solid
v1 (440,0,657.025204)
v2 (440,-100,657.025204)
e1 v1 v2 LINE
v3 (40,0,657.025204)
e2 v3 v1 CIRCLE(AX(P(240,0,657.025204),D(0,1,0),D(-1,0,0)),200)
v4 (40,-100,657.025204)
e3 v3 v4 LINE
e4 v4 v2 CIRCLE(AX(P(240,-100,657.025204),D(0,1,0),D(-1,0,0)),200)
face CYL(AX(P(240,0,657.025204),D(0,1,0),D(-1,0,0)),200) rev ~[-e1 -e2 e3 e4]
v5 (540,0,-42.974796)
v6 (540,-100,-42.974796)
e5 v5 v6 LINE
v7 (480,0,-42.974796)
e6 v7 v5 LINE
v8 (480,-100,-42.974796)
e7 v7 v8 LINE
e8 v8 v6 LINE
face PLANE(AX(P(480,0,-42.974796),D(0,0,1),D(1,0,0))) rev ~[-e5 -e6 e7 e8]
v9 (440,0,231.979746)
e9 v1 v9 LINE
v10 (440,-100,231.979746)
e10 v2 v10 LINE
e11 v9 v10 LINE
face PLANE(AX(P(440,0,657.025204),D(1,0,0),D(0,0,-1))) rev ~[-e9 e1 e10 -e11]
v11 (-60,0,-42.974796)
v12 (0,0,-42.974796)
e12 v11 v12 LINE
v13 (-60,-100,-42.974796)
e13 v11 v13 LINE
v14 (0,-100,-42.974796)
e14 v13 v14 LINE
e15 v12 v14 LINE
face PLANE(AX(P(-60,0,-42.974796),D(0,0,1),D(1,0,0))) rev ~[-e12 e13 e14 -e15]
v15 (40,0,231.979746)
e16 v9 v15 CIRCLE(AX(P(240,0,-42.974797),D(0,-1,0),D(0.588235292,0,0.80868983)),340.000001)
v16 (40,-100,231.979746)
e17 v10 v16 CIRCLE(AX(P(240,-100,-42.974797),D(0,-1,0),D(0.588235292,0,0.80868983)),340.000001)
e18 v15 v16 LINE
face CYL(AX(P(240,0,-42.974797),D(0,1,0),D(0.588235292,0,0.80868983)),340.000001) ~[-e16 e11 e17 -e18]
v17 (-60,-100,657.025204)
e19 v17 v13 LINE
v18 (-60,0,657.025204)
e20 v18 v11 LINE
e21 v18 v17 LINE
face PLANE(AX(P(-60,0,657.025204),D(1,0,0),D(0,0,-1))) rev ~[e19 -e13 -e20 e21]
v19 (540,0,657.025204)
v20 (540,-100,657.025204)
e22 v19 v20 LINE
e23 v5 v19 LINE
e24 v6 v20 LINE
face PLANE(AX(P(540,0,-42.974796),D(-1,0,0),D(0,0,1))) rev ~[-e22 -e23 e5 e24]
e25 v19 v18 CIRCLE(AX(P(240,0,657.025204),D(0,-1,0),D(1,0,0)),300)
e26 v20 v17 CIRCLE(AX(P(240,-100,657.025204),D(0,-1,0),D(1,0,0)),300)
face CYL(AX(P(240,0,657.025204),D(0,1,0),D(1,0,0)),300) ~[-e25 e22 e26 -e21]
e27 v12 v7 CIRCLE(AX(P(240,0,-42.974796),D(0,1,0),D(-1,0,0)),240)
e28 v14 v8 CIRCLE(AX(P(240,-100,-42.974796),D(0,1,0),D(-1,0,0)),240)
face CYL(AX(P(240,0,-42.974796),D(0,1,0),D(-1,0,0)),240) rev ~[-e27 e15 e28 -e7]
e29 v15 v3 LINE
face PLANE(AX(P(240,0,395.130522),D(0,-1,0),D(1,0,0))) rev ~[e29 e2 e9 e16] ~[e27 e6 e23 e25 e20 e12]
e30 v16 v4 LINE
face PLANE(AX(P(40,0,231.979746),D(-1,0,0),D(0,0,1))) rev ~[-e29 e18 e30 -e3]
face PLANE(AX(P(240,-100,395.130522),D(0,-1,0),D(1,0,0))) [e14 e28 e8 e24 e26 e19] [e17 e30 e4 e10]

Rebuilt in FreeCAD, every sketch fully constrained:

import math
import FreeCAD as App
import Part
import Sketcher

V = App.Vector
Q = App.Units.Quantity

doc = App.newDocument("Part")
params = doc.addObject("Spreadsheet::Sheet", "Params")
for row, (alias, value) in enumerate([
    ("sketch1_radius", "240 mm"),
    ("sketch1_radius2", "300 mm"),
    ("sketch1_radius3", "200 mm"),
    ("sketch1_radius4", "340.000001 mm"),
    ("sketch1_height", "700 mm"),
    ("pad1_length", "100 mm"),
], start=1):
    params.set(f"A{row}", alias)
    params.set(f"B{row}", "=" + value)
    params.setAlias(f"B{row}", alias)

body = doc.addObject("PartDesign::Body", "Body")

sketch1 = body.newObject("Sketcher::SketchObject", "Sketch")
sketch1.AttachmentSupport = (doc.getObject("XZ_Plane"), [""])
sketch1.MapMode = "FlatFace"
sketch1.addGeometry([
    Part.LineSegment(V(-60, -43, 0), V(0, -43, 0)),
    Part.ArcOfCircle(Part.Circle(V(240, -43, 0), V(0, 0, 1), 240), math.radians(0), math.radians(180)),
    Part.LineSegment(V(480, -43, 0), V(540, -43, 0)),
    Part.LineSegment(V(540, -43, 0), V(540, 657, 0)),
    Part.ArcOfCircle(Part.Circle(V(240, 657, 0), V(0, 0, 1), 300), math.radians(0), math.radians(180)),
    Part.LineSegment(V(-60, 657, 0), V(-60, -43, 0)),
    Part.ArcOfCircle(Part.Circle(V(240, 657, 0), V(0, 0, 1), 200), math.radians(0), math.radians(180)),
    Part.LineSegment(V(440, 657, 0), V(440, 232, 0)),
    Part.ArcOfCircle(Part.Circle(V(240, -43, 0), V(0, 0, 1), 340), math.radians(54), math.radians(126)),
    Part.LineSegment(V(40, 232, 0), V(40, 657, 0)),
], False)
sketch1.addConstraint([
    Sketcher.Constraint("Coincident", 0, 2, 1, 2),
    Sketcher.Constraint("Coincident", 1, 1, 2, 1),
    Sketcher.Constraint("Coincident", 2, 2, 3, 1),
    Sketcher.Constraint("Tangent", 3, 2, 4, 1),
    Sketcher.Constraint("Tangent", 4, 2, 5, 1),
    Sketcher.Constraint("Coincident", 5, 2, 0, 1),
    Sketcher.Constraint("Tangent", 6, 1, 7, 1),
    Sketcher.Constraint("Coincident", 7, 2, 8, 1),
    Sketcher.Constraint("Coincident", 8, 2, 9, 1),
    Sketcher.Constraint("Tangent", 9, 2, 6, 2),
    Sketcher.Constraint("Horizontal", 0),
    Sketcher.Constraint("Horizontal", 2),
    Sketcher.Constraint("Vertical", 3),
    Sketcher.Constraint("Vertical", 5),
    Sketcher.Constraint("Vertical", 7),
    Sketcher.Constraint("Vertical", 9),
    Sketcher.Constraint("Coincident", 6, 3, 4, 3),
    Sketcher.Constraint("Coincident", 8, 3, 1, 3),
    Sketcher.Constraint("PointOnObject", 0, 2, -2),
    Sketcher.Constraint("Horizontal", 8, 3, 0, 2),
    Sketcher.Constraint("Horizontal", 0, 2, 1, 1),
    Sketcher.Constraint("Horizontal", 7, 2, 8, 2),
    Sketcher.Constraint("Radius", 1, Q("240 mm")),
    Sketcher.Constraint("Radius", 4, Q("300 mm")),
    Sketcher.Constraint("Radius", 6, Q("200 mm")),
    Sketcher.Constraint("Radius", 8, Q("340.000001 mm")),
    Sketcher.Constraint("DistanceY", 3, 1, 3, 2, Q("700 mm")),
    Sketcher.Constraint("DistanceY", 1, 3, -1, 1, Q("42.974796 mm")),
])
sketch1.setExpression("Constraints[22]", "Params.sketch1_radius")
sketch1.setExpression("Constraints[23]", "Params.sketch1_radius2")
sketch1.setExpression("Constraints[24]", "Params.sketch1_radius3")
sketch1.setExpression("Constraints[25]", "Params.sketch1_radius4")
sketch1.setExpression("Constraints[26]", "Params.sketch1_height")
pad1 = body.newObject("PartDesign::Pad", "Pad")
pad1.Profile = sketch1
pad1.setExpression("Length", "Params.pad1_length")

doc.recompute()
